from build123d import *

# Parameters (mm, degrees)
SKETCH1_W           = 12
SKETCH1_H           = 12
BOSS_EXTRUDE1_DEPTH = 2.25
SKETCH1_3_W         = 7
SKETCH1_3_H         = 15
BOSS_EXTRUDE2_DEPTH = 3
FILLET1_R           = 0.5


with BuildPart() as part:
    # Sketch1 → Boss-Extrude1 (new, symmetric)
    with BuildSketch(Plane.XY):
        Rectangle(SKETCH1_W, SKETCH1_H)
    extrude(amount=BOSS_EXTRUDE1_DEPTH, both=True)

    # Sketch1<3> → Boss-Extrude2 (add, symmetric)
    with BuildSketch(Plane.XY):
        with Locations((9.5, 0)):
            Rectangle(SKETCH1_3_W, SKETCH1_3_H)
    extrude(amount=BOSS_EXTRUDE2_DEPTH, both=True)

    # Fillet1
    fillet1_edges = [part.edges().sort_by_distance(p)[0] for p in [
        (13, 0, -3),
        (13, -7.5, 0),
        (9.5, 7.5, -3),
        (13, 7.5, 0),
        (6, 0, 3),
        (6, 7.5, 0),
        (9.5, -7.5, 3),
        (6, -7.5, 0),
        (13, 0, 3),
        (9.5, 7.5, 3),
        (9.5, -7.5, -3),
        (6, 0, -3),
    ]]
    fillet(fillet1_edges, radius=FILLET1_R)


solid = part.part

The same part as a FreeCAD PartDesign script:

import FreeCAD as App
import Part
import Sketcher
Q = App.Units.Quantity


def edges_at(feature, points):
    """Names of the edges that pass closest to the given points."""
    edges = feature.Shape.Edges
    near = lambda p: min(range(len(edges)), key=lambda i: edges[i].distToShape(Part.Vertex(*p))[0])
    return sorted({f"Edge{near(p) + 1}" for p in points})


def add_polygon(sketch, points):
    """Adds a closed chain of lines whose ends are joined by coincident constraints."""
    first, n = sketch.GeometryCount, len(points)
    for a, b in zip(points, points[1:] + points[:1]):
        sketch.addGeometry(Part.LineSegment(App.Vector(*a, 0), App.Vector(*b, 0)), False)
    for i in range(n):
        sketch.addConstraint(Sketcher.Constraint("Coincident", first + i, 2, first + (i + 1) % n, 1))

doc = App.newDocument("Part")
body = doc.addObject("PartDesign::Body", "Body")

# Sketch on XY plane
sketch1 = doc.addObject("Sketcher::SketchObject", "Sketch")
body.addObject(sketch1)
sketch1.AttachmentSupport = (doc.XY_Plane, [""])
sketch1.MapMode = "FlatFace"
add_polygon(sketch1, [(-6, 6), (-6, -6), (6, -6), (6, 6)])  # lines 0-3
sketch1.addConstraint(Sketcher.Constraint("Vertical", 0))
sketch1.addConstraint(Sketcher.Constraint("Horizontal", 1))
sketch1.addConstraint(Sketcher.Constraint("Vertical", 2))
sketch1.addConstraint(Sketcher.Constraint("Horizontal", 3))
sketch1.addConstraint(Sketcher.Constraint("Symmetric", 0, 2, 2, 2, -1, 1))
sketch1.addConstraint(Sketcher.Constraint("Equal", 3, 0))
sketch1.addConstraint(Sketcher.Constraint("DistanceX", 1, 1, 1, 2, Q("12 mm")))
pad1 = doc.addObject("PartDesign::Pad", "Pad")
body.addObject(pad1)
pad1.Profile = sketch1
pad1.Length = 4.5
pad1.Midplane = True

# Sketch on XY plane
sketch2 = doc.addObject("Sketcher::SketchObject", "Sketch001")
body.addObject(sketch2)
sketch2.AttachmentSupport = (doc.XY_Plane, [""])
sketch2.MapMode = "FlatFace"
add_polygon(sketch2, [(6, 8), (6, -8), (13, -8), (13, 8)])  # lines 0-3
sketch2.addConstraint(Sketcher.Constraint("Vertical", 0))
sketch2.addConstraint(Sketcher.Constraint("Horizontal", 1))
sketch2.addConstraint(Sketcher.Constraint("Vertical", 2))
sketch2.addConstraint(Sketcher.Constraint("Horizontal", 3))
sketch2.addConstraint(Sketcher.Constraint("DistanceX", 1, 1, 1, 2, Q("7 mm")))
sketch2.addConstraint(Sketcher.Constraint("DistanceY", 0, 2, 0, 1, Q("15 mm")))
sketch2.addConstraint(Sketcher.Constraint("DistanceX", -1, 1, 0, 2, Q("6 mm")))
sketch2.addConstraint(Sketcher.Constraint("DistanceY", 0, 2, -1, 1, Q("7.5 mm")))
pad2 = doc.addObject("PartDesign::Pad", "Pad001")
body.addObject(pad2)
pad2.Profile = sketch2
pad2.Length = 6
pad2.Midplane = True
doc.recompute()

fillet = doc.addObject("PartDesign::Fillet", "Fillet")
body.addObject(fillet)
fillet.Base = (pad2, edges_at(pad2, [
    (13, 0, -3),
    (13, -7.5, 0),
    (9.5, 7.5, -3),
    (13, 7.5, 0),
    (6, 0, 3),
    (6, 7.5, 0),
    (9.5, -7.5, 3),
    (6, -7.5, 0),
    (13, 0, 3),
    (9.5, 7.5, 3),
    (9.5, -7.5, -3),
    (6, 0, -3),
]))
fillet.Radius = 0.5

doc.recompute()
